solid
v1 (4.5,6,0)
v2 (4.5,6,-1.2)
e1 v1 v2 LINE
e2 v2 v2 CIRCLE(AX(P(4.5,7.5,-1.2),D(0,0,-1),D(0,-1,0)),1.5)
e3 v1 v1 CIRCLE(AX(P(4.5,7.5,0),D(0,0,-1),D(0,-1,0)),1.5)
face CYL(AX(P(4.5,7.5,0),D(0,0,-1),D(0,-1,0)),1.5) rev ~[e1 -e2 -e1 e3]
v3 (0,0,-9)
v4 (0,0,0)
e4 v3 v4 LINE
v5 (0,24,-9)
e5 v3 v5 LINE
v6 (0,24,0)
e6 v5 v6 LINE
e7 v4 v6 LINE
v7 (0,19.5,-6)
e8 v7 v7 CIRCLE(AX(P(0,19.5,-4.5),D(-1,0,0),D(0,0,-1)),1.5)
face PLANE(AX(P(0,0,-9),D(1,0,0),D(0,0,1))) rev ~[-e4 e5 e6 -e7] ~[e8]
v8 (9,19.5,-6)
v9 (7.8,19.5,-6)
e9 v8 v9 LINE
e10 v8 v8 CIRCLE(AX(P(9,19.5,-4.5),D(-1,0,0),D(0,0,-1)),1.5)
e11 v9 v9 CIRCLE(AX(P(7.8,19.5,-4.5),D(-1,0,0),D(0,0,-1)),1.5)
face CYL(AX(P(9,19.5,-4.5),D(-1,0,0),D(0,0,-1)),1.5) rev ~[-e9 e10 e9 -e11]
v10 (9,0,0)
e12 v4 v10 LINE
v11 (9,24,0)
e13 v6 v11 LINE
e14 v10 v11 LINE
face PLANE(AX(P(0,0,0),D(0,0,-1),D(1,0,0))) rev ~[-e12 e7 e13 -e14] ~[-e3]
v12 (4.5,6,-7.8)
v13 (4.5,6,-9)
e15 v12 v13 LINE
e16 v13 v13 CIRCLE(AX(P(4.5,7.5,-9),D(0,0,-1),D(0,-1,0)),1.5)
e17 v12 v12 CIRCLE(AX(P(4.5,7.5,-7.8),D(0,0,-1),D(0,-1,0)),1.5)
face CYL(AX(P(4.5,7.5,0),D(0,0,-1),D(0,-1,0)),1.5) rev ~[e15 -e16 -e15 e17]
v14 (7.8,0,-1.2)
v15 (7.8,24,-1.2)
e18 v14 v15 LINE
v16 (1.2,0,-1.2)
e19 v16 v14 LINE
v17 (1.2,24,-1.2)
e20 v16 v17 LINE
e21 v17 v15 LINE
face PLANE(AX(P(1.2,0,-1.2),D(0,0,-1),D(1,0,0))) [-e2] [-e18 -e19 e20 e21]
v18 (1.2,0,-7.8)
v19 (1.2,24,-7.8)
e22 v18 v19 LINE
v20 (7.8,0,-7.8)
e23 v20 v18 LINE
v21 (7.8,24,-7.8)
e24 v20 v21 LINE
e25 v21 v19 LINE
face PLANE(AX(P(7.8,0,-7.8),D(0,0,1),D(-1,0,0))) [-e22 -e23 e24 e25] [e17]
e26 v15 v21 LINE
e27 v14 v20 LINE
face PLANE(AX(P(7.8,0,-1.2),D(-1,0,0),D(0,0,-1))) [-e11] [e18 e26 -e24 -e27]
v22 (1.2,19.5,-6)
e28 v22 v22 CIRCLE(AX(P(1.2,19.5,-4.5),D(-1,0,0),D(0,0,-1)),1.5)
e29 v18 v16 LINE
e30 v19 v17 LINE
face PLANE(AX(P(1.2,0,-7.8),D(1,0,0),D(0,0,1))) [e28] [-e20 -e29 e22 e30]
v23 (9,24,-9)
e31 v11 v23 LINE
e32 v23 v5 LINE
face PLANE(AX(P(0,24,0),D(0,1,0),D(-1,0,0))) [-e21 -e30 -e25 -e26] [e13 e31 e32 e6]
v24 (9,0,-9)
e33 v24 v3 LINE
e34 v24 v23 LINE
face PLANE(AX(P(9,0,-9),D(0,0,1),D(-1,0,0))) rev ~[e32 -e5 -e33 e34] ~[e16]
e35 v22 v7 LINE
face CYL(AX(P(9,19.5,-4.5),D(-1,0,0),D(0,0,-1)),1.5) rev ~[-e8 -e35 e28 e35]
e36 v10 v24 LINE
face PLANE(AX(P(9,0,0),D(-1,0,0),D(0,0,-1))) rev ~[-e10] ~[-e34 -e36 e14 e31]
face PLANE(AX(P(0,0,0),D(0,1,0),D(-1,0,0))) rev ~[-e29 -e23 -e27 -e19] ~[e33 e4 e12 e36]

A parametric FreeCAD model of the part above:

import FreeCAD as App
import Part
import Sketcher

V = App.Vector

doc = App.newDocument("Part")
body = doc.addObject("PartDesign::Body", "Body")

# Sketch on XZ plane
sketch1 = body.newObject("Sketcher::SketchObject", "Sketch")
sketch1.AttachmentSupport = (doc.getObject("XZ_Plane"), [""])
sketch1.MapMode = "FlatFace"
sketch1.addGeometry(Part.LineSegment(V(0, -9, 0), V(0, 0, 0)), False)
sketch1.addGeometry(Part.LineSegment(V(0, 0, 0), V(9, 0, 0)), False)
sketch1.addGeometry(Part.LineSegment(V(9, 0, 0), V(9, -9, 0)), False)
sketch1.addGeometry(Part.LineSegment(V(9, -9, 0), V(0, -9, 0)), False)
sketch1.addGeometry(Part.LineSegment(V(7.8, -1.2, 0), V(1.2, -1.2, 0)), False)
sketch1.addGeometry(Part.LineSegment(V(1.2, -1.2, 0), V(1.2, -7.8, 0)), False)
sketch1.addGeometry(Part.LineSegment(V(1.2, -7.8, 0), V(7.8, -7.8, 0)), False)
sketch1.addGeometry(Part.LineSegment(V(7.8, -7.8, 0), V(7.8, -1.2, 0)), False)
sketch1.addConstraint(Sketcher.Constraint("Coincident", 0, 2, 1, 1))
sketch1.addConstraint(Sketcher.Constraint("Coincident", 1, 2, 2, 1))
sketch1.addConstraint(Sketcher.Constraint("Coincident", 2, 2, 3, 1))
sketch1.addConstraint(Sketcher.Constraint("Coincident", 3, 2, 0, 1))
sketch1.addConstraint(Sketcher.Constraint("Coincident", 4, 2, 5, 1))
sketch1.addConstraint(Sketcher.Constraint("Coincident", 5, 2, 6, 1))
sketch1.addConstraint(Sketcher.Constraint("Coincident", 6, 2, 7, 1))
sketch1.addConstraint(Sketcher.Constraint("Coincident", 7, 2, 4, 1))
sketch1.addConstraint(Sketcher.Constraint("Vertical", 0))
sketch1.addConstraint(Sketcher.Constraint("Horizontal", 1))
sketch1.addConstraint(Sketcher.Constraint("Vertical", 2))
sketch1.addConstraint(Sketcher.Constraint("Horizontal", 3))
sketch1.addConstraint(Sketcher.Constraint("Horizontal", 4))
sketch1.addConstraint(Sketcher.Constraint("Vertical", 5))
sketch1.addConstraint(Sketcher.Constraint("Horizontal", 6))
sketch1.addConstraint(Sketcher.Constraint("Vertical", 7))
sketch1.addConstraint(Sketcher.Constraint("Coincident", 0, 2, -1, 1))
sketch1.addConstraint(Sketcher.Constraint("Equal", 3, 0))
sketch1.addConstraint(Sketcher.Constraint("Equal", 6, 5))
sketch1.addConstraint(Sketcher.Constraint("DistanceX", 1, 1, 1, 2, 9.0))
sketch1.addConstraint(Sketcher.Constraint("DistanceX", 4, 2, 4, 1, 6.6))
sketch1.addConstraint(Sketcher.Constraint("DistanceX", -1, 1, 4, 2, 1.2))
sketch1.addConstraint(Sketcher.Constraint("DistanceY", 4, 2, -1, 1, 1.2))
pad1 = body.newObject("PartDesign::Pad", "Pad")
pad1.Profile = sketch1
pad1.Length = 24
pad1.Reversed = True

# Sketch on XY plane
sketch2 = body.newObject("Sketcher::SketchObject", "Sketch001")
sketch2.AttachmentSupport = (doc.getObject("XY_Plane"), [""])
sketch2.MapMode = "FlatFace"
sketch2.addGeometry(Part.Circle(V(4.5, 7.5, 0), V(0, 0, 1), 1.5), False)
sketch2.addConstraint(Sketcher.Constraint("Diameter", 0, 3.0))
sketch2.addConstraint(Sketcher.Constraint("DistanceX", -1, 1, 0, 3, 4.5))
sketch2.addConstraint(Sketcher.Constraint("DistanceY", -1, 1, 0, 3, 7.5))
doc.recompute()
hole = body.newObject("PartDesign::Hole", "Hole")
hole.Profile = sketch2
hole.ThreadType = "None"
hole.Diameter = 3
hole.DepthType = "ThroughAll"

# Sketch on YZ plane
sketch3 = body.newObject("Sketcher::SketchObject", "Sketch002")
sketch3.AttachmentSupport = (doc.getObject("YZ_Plane"), [""])
sketch3.MapMode = "FlatFace"
sketch3.AttachmentOffset = App.Placement(V(0, 0, 9), App.Rotation())
sketch3.addGeometry(Part.Circle(V(19.5, -4.5, 0), V(0, 0, 1), 1.5), False)
sketch3.addConstraint(Sketcher.Constraint("Diameter", 0, 3.0))
sketch3.addConstraint(Sketcher.Constraint("DistanceX", -1, 1, 0, 3, 19.5))
sketch3.addConstraint(Sketcher.Constraint("DistanceY", 0, 3, -1, 1, 4.5))
doc.recompute()
hole2 = body.newObject("PartDesign::Hole", "Hole001")
hole2.Profile = sketch3
hole2.ThreadType = "None"
hole2.Diameter = 3
hole2.DepthType = "ThroughAll"

doc.recompute()
